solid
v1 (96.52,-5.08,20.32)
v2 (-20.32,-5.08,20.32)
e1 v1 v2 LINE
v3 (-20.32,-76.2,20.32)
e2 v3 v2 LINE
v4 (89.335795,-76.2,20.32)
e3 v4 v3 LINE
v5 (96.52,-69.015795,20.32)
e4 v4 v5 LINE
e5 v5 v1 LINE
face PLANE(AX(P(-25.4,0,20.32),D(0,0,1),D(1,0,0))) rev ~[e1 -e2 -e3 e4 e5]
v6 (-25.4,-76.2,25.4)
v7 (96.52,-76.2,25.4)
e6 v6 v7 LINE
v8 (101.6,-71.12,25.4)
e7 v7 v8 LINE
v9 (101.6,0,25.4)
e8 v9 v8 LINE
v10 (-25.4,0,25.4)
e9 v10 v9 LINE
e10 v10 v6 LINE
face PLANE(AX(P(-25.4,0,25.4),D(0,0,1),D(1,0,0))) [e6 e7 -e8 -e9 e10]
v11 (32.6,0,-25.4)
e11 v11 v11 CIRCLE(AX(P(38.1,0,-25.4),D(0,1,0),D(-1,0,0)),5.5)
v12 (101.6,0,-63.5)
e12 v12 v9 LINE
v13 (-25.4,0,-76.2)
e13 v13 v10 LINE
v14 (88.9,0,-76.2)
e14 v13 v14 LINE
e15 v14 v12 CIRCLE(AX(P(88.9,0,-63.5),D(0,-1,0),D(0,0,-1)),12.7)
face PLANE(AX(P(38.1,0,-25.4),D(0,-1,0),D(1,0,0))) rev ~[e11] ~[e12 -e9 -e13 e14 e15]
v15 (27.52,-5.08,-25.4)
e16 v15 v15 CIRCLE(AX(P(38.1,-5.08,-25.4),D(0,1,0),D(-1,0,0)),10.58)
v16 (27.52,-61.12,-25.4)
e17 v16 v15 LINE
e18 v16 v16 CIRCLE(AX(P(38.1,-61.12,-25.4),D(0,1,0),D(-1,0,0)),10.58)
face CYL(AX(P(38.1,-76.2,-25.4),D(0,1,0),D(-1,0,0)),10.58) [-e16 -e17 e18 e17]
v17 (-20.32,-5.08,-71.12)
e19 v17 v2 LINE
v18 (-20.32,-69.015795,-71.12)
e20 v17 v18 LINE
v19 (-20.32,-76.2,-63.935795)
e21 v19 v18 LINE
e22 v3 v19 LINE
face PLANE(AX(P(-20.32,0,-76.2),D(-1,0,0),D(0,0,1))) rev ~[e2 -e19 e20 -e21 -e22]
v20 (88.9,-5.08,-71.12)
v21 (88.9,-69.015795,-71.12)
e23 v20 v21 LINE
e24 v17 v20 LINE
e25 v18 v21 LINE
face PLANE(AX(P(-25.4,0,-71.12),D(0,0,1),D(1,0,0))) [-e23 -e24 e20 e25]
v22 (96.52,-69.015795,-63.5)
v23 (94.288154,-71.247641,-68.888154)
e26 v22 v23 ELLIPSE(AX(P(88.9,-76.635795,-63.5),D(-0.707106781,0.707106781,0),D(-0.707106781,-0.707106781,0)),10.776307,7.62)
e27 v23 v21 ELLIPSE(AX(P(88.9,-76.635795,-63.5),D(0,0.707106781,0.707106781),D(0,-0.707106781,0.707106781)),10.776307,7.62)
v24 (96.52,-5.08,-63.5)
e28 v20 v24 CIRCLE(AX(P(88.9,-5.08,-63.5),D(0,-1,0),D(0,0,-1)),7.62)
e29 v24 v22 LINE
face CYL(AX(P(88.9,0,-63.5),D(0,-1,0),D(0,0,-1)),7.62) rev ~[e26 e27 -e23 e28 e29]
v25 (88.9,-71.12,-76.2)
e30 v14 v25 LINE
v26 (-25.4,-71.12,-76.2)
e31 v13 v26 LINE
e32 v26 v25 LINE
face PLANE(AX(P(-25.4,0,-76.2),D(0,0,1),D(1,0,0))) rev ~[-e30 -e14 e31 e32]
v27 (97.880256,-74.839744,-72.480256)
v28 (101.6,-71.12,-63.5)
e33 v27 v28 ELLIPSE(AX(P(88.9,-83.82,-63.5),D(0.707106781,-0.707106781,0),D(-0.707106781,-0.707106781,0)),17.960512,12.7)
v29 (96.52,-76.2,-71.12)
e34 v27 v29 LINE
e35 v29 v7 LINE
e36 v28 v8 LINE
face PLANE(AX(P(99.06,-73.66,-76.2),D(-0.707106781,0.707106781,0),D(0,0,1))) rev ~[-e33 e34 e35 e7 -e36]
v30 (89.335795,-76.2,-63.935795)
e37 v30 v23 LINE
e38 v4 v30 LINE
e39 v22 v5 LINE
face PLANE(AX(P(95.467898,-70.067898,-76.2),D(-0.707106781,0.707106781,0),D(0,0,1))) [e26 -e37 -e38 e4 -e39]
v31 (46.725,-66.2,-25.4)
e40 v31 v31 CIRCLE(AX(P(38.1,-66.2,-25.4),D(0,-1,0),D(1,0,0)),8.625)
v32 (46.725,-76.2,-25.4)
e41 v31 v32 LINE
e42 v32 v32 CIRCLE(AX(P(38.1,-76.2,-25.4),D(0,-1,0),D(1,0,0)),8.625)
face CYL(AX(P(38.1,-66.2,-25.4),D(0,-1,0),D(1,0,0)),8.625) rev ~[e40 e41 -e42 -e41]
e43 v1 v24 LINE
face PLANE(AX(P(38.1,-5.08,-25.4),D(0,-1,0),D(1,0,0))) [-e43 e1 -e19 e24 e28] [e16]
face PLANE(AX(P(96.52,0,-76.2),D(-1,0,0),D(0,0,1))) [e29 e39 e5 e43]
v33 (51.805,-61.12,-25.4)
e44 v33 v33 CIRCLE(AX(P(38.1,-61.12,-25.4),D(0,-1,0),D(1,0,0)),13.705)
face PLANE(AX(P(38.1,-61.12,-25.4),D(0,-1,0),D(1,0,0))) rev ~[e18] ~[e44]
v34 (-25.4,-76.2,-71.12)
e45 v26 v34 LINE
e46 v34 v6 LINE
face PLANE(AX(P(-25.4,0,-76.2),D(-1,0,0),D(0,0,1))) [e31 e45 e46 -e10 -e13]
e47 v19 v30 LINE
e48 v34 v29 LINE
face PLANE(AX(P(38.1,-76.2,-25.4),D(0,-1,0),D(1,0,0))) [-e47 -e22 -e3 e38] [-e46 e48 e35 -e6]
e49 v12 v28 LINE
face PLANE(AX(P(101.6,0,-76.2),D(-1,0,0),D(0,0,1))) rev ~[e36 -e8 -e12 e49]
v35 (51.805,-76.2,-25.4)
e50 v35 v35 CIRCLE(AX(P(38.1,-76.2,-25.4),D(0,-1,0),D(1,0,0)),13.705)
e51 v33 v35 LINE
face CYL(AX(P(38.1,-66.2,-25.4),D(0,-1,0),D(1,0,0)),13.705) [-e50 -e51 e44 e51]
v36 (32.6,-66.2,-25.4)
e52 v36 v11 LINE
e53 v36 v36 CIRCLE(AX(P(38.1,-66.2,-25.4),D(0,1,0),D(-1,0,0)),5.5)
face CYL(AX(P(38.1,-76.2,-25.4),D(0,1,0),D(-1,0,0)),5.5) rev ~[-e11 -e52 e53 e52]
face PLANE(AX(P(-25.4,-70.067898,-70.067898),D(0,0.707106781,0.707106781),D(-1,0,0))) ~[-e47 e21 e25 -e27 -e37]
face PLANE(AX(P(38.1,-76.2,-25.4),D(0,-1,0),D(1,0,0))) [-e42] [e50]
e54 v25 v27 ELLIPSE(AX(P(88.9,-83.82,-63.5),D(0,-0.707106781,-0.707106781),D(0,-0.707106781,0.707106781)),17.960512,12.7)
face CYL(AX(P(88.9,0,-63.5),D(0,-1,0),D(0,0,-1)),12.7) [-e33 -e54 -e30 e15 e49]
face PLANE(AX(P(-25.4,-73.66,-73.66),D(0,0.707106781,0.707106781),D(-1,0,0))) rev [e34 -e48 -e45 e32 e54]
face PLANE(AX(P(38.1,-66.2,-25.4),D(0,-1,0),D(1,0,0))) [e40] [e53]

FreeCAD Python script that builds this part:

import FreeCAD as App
import Part
import Sketcher

V = App.Vector
Q = App.Units.Quantity


def edges_at(feature, points):
    """Names of the edges that pass closest to the given points."""
    edges = feature.Shape.Edges
    near = lambda p: min(range(len(edges)), key=lambda i: edges[i].distToShape(Part.Vertex(*p))[0])
    return sorted({f"Edge{near(p) + 1}" for p in points})


def faces_at(feature, points):
    """Names of the faces that lie closest to the given points."""
    faces = feature.Shape.Faces
    near = lambda p: min(range(len(faces)), key=lambda i: faces[i].distToShape(Part.Vertex(*p))[0])
    return sorted({f"Face{near(p) + 1}" for p in points})


def add_polygon(sketch, points):
    """Adds a closed chain of lines whose ends are joined by coincident constraints."""
    first, n = sketch.GeometryCount, len(points)
    for a, b in zip(points, points[1:] + points[:1]):
        sketch.addGeometry(Part.LineSegment(App.Vector(*a, 0), App.Vector(*b, 0)), False)
    for i in range(n):
        sketch.addConstraint(Sketcher.Constraint("Coincident", first + i, 2, first + (i + 1) % n, 1))

doc = App.newDocument("Part")
body = doc.addObject("PartDesign::Body", "Body")

sketch1 = doc.addObject("Sketcher::SketchObject", "Sketch")
body.addObject(sketch1)
sketch1.AttachmentSupport = (doc.XZ_Plane, [""])
sketch1.MapMode = "FlatFace"
add_polygon(sketch1, [(-25.4, 25.4), (-25.4, -76.2), (101.6, -76.2), (101.6, 25.4)])
sketch1.addConstraint(Sketcher.Constraint("Vertical", 0))
sketch1.addConstraint(Sketcher.Constraint("Horizontal", 1))
sketch1.addConstraint(Sketcher.Constraint("Vertical", 2))
sketch1.addConstraint(Sketcher.Constraint("Horizontal", 3))
sketch1.addConstraint(Sketcher.Constraint("DistanceX", 1, 1, 1, 2, Q("5 in")))
sketch1.addConstraint(Sketcher.Constraint("DistanceY", 0, 2, 0, 1, Q("4 in")))
sketch1.addConstraint(Sketcher.Constraint("DistanceX", 0, 2, -1, 1, Q("1 in")))
sketch1.addConstraint(Sketcher.Constraint("DistanceY", 0, 2, -1, 1, Q("3 in")))
pad1 = doc.addObject("PartDesign::Pad", "Pad")
body.addObject(pad1)
pad1.Profile = sketch1
pad1.Length = Q("3 in")

sketch2 = doc.addObject("Sketcher::SketchObject", "Sketch001")
body.addObject(sketch2)
sketch2.AttachmentSupport = (doc.XZ_Plane, [""])
sketch2.MapMode = "FlatFace"
sketch2.AttachmentOffset = App.Placement(V(0, 0, 3 * 25.4), App.Rotation())
sketch2.addGeometry(Part.Circle(V(38.1, -25.4, 0), V(0, 0, 1), 5.5), False)
sketch2.addConstraint(Sketcher.Constraint("DistanceY", 0, 3, -1, 1, Q("1 in")))
sketch2.addConstraint(Sketcher.Constraint("DistanceX", -1, 1, 0, 3, Q("1.5 in")))
sketch2.addConstraint(Sketcher.Constraint("Diameter", 0, Q("11 mm")))
doc.recompute()
hole = doc.addObject("PartDesign::Hole", "Hole")
body.addObject(hole)
hole.Profile = sketch2
hole.ThreadType = "None"
hole.Diameter = 11
hole.DepthType = "ThroughAll"
hole.HoleCutType = "Counterbore"
hole.HoleCutDiameter = 17.25
hole.HoleCutDepth = 10
doc.recompute()

chamfer = doc.addObject("PartDesign::Chamfer", "Chamfer")
body.addObject(chamfer)
chamfer.Base = (hole, edges_at(hole, [(38.1, -76.2, -76.2), (101.6, -76.2, -25.4)]))
chamfer.Size = Q("0.2 in")
doc.recompute()

fillet = doc.addObject("PartDesign::Fillet", "Fillet")
body.addObject(fillet)
fillet.Base = (chamfer, edges_at(chamfer, [(101.6, -35.56, -76.2)]))
fillet.Radius = Q("0.5 in")
doc.recompute()

thickness = doc.addObject("PartDesign::Thickness", "Thickness")
body.addObject(thickness)
thickness.Base = (fillet, faces_at(fillet, [(11.176, -76.2, -42.164)]))
thickness.Value = Q("0.2 in")
thickness.Reversed = True
thickness.Join = "Intersection"

doc.recompute()
